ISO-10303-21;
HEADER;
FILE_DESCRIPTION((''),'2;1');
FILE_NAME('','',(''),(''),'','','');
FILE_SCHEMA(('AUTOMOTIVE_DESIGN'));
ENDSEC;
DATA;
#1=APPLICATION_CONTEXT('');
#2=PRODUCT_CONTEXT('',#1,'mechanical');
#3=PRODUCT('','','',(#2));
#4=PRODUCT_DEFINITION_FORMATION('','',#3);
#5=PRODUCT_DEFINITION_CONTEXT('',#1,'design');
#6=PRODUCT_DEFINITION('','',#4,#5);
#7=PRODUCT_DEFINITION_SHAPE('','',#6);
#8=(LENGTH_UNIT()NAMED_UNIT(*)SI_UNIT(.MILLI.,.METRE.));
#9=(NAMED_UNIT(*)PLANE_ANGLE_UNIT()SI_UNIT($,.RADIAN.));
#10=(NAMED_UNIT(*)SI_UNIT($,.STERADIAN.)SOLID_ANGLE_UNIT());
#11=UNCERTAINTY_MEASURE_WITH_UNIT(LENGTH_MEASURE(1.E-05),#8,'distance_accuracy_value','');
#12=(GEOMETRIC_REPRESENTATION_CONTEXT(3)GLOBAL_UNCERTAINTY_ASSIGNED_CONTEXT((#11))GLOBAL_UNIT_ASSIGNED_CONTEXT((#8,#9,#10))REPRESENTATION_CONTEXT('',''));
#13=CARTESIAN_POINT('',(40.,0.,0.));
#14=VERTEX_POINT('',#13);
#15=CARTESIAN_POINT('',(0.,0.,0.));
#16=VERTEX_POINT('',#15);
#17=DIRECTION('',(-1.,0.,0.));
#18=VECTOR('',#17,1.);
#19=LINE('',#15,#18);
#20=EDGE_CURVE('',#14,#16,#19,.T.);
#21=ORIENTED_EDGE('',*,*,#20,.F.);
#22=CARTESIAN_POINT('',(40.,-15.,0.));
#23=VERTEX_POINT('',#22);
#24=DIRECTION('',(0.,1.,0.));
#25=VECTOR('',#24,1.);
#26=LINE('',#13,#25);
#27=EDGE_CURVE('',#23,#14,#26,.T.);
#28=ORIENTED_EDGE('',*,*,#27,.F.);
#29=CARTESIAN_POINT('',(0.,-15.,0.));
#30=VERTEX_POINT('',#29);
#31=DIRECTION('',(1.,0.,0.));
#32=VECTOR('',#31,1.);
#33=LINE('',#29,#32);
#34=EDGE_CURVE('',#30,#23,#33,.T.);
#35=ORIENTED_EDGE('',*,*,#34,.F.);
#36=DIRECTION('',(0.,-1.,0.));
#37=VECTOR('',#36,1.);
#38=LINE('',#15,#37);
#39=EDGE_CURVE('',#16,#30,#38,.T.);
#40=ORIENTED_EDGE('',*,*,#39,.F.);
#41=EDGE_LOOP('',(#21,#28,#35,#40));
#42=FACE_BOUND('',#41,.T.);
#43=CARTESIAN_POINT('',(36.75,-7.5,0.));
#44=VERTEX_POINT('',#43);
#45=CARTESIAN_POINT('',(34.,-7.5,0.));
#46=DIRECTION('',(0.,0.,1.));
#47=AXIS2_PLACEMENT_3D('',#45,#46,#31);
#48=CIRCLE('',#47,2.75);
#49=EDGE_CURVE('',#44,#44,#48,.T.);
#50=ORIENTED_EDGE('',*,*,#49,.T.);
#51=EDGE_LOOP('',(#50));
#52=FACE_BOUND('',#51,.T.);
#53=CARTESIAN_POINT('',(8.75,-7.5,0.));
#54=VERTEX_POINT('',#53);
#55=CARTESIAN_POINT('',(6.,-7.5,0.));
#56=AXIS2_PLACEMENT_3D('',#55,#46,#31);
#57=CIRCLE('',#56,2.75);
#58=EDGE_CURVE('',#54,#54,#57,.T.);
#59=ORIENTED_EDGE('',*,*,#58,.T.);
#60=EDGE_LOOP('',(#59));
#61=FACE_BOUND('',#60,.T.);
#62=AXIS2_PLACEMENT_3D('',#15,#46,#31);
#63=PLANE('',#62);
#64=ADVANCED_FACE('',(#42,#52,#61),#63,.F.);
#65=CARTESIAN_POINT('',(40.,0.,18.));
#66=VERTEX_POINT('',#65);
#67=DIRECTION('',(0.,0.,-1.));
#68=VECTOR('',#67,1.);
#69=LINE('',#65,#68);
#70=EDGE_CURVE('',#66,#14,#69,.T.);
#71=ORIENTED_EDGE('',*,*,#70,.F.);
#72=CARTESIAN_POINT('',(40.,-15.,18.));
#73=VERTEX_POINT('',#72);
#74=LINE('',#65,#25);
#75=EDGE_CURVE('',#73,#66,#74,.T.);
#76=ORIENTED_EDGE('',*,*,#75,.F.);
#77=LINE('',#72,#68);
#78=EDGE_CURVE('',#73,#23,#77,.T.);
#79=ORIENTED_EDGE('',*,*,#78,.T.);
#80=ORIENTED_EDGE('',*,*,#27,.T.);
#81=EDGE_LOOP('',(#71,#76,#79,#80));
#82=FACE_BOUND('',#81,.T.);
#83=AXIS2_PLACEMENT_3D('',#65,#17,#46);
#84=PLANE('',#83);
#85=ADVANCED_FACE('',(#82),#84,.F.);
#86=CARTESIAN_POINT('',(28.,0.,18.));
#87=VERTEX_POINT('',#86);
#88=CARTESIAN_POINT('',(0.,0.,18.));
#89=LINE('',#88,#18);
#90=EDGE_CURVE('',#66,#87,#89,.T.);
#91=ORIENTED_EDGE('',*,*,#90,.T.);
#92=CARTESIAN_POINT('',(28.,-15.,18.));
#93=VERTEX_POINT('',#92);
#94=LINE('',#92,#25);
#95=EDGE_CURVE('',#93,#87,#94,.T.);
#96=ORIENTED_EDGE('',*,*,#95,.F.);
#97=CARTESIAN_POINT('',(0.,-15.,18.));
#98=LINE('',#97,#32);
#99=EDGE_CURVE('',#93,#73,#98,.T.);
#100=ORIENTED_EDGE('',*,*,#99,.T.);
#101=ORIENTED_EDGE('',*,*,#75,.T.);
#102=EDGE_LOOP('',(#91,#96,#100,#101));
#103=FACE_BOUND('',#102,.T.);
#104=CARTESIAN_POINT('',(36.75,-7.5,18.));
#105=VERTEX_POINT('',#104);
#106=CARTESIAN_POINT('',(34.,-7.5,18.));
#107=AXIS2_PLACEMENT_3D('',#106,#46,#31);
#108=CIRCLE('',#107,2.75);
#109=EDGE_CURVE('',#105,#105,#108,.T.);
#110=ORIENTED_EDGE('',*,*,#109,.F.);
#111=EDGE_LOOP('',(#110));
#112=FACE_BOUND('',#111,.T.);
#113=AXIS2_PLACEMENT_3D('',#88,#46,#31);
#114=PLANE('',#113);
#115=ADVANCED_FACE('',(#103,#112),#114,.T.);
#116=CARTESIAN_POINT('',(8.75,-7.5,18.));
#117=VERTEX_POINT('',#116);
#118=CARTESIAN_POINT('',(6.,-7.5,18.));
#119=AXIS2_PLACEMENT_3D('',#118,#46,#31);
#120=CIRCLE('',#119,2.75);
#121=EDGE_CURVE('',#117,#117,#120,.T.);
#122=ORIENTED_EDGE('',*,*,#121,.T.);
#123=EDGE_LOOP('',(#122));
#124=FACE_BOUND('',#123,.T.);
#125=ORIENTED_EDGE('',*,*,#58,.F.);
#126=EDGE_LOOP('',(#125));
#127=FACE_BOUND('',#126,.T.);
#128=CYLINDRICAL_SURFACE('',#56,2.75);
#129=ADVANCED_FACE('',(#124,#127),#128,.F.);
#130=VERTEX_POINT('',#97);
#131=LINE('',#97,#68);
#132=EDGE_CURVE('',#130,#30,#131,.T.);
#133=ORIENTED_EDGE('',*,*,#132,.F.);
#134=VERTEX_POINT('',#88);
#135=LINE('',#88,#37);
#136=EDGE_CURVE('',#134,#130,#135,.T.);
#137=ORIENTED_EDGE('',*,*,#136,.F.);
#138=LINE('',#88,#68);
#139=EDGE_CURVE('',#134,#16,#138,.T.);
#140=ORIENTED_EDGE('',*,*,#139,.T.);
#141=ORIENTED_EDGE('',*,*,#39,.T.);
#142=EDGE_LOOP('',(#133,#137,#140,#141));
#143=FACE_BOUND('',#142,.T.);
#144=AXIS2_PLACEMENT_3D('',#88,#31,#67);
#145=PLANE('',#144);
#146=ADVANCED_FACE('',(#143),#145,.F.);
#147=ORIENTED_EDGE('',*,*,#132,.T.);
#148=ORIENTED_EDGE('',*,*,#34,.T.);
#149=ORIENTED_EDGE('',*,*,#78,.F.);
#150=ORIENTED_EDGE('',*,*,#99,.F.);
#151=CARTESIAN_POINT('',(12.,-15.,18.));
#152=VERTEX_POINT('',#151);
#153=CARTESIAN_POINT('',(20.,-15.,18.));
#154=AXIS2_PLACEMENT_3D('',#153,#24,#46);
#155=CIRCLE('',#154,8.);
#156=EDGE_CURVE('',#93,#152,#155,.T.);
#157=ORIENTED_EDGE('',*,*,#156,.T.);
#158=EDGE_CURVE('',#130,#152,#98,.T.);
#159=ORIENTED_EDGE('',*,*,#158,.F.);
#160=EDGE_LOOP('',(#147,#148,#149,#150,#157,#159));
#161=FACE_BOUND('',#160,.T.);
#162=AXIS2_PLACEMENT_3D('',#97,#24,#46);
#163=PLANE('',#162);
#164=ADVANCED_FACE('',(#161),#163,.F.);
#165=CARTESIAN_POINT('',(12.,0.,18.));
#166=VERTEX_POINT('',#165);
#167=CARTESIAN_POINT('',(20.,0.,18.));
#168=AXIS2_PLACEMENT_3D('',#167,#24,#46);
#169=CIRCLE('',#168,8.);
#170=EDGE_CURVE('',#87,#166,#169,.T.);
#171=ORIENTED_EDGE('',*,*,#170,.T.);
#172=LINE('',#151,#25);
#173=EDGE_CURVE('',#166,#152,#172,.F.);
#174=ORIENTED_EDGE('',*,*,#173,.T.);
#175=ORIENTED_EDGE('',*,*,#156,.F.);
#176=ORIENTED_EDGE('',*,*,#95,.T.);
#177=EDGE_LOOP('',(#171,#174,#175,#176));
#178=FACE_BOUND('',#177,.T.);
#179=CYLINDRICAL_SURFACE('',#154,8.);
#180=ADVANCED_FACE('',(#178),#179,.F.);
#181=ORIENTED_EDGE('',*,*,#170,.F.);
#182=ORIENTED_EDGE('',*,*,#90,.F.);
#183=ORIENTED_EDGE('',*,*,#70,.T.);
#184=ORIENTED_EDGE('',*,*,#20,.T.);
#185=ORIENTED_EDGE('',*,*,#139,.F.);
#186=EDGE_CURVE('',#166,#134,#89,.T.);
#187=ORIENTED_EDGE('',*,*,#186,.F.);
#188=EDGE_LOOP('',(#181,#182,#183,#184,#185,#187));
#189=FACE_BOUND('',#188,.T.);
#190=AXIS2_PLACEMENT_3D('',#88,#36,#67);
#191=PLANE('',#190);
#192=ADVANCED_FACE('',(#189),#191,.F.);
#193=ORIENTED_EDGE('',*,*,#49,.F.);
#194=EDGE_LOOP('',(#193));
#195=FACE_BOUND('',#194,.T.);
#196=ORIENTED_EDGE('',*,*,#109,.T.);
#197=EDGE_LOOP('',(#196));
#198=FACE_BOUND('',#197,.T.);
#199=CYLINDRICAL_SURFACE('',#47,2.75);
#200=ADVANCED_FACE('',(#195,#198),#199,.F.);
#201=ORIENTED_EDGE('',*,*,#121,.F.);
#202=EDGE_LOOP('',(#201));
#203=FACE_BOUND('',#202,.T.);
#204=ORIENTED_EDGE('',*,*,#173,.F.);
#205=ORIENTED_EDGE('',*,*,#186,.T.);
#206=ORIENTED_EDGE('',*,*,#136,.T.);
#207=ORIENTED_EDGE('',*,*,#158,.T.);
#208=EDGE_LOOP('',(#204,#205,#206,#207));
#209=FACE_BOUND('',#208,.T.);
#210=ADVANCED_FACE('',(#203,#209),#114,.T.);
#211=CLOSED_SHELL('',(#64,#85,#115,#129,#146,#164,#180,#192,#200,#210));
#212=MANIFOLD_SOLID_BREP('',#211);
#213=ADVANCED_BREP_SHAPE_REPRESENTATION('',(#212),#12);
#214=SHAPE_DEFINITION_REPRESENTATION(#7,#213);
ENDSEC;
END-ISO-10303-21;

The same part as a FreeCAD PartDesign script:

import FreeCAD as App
import Part
import Sketcher

V = App.Vector
Q = App.Units.Quantity

doc = App.newDocument("Part")
params = doc.addObject("Spreadsheet::Sheet", "Params")
for row, (alias, value) in enumerate([
    ("sketch1_width", "40 mm"),
    ("sketch1_height", "15 mm"),
    ("pad1_length", "18 mm"),
    ("sketch2_diameter", "16 mm"),
    ("pocket1_length", "15 mm"),
    ("sketch3_diameter", "5.5 mm"),
], start=1):
    params.set(f"A{row}", alias)
    params.set(f"B{row}", "=" + value)
    params.setAlias(f"B{row}", alias)

body = doc.addObject("PartDesign::Body", "Body")

sketch1 = body.newObject("Sketcher::SketchObject", "Sketch")
sketch1.AttachmentSupport = (doc.getObject("XY_Plane"), [""])
sketch1.MapMode = "FlatFace"
sketch1.addGeometry([
    Part.LineSegment(V(0, 0, 0), V(0, -15, 0)),
    Part.LineSegment(V(0, -15, 0), V(40, -15, 0)),
    Part.LineSegment(V(40, -15, 0), V(40, 0, 0)),
    Part.LineSegment(V(40, 0, 0), V(0, 0, 0)),
], False)
sketch1.addConstraint([
    Sketcher.Constraint("Coincident", 0, 2, 1, 1),
    Sketcher.Constraint("Coincident", 1, 2, 2, 1),
    Sketcher.Constraint("Coincident", 2, 2, 3, 1),
    Sketcher.Constraint("Coincident", 3, 2, 0, 1),
    Sketcher.Constraint("Vertical", 0),
    Sketcher.Constraint("Horizontal", 1),
    Sketcher.Constraint("Vertical", 2),
    Sketcher.Constraint("Horizontal", 3),
    Sketcher.Constraint("Coincident", 3, 2, -1, 1),
    Sketcher.Constraint("DistanceX", 1, 1, 1, 2, Q("40 mm")),
    Sketcher.Constraint("DistanceY", 0, 2, 0, 1, Q("15 mm")),
])
sketch1.setExpression("Constraints[9]", "Params.sketch1_width")
sketch1.setExpression("Constraints[10]", "Params.sketch1_height")
pad1 = body.newObject("PartDesign::Pad", "Pad")
pad1.Profile = sketch1
pad1.setExpression("Length", "Params.pad1_length")

sketch2 = body.newObject("Sketcher::SketchObject", "Sketch001")
sketch2.AttachmentSupport = (doc.getObject("XZ_Plane"), [""])
sketch2.MapMode = "FlatFace"
sketch2.addGeometry(Part.Circle(V(20, 18, 0), V(0, 0, 1), 8), False)
sketch2.addConstraint([
    Sketcher.Constraint("Diameter", 0, Q("16 mm")),
    Sketcher.Constraint("DistanceX", -1, 1, 0, 3, Q("20 mm")),
    Sketcher.Constraint("DistanceY", -1, 1, 0, 3, Q("18 mm")),
])
sketch2.setExpression("Constraints[0]", "Params.sketch2_diameter")
pocket1 = body.newObject("PartDesign::Pocket", "Pocket")
pocket1.Profile = sketch2
pocket1.setExpression("Length", "Params.pocket1_length")
pocket1.Reversed = True

sketch3 = body.newObject("Sketcher::SketchObject", "Sketch002")
sketch3.AttachmentSupport = (doc.getObject("XY_Plane"), [""])
sketch3.MapMode = "FlatFace"
sketch3.AttachmentOffset = App.Placement(V(0, 0, 18), App.Rotation())
sketch3.addGeometry([
    Part.Circle(V(34, -7.5, 0), V(0, 0, 1), 2.75),
    Part.Circle(V(6, -7.5, 0), V(0, 0, 1), 2.75),
], False)
sketch3.addConstraint([
    Sketcher.Constraint("Equal", 0, 1),
    Sketcher.Constraint("Horizontal", 0, 3, 1, 3),
    Sketcher.Constraint("Diameter", 0, Q("5.5 mm")),
    Sketcher.Constraint("DistanceX", -1, 1, 0, 3, Q("34 mm")),
    Sketcher.Constraint("DistanceX", -1, 1, 1, 3, Q("6 mm")),
    Sketcher.Constraint("DistanceY", 0, 3, -1, 1, Q("7.5 mm")),
])
sketch3.setExpression("Constraints[2]", "Params.sketch3_diameter")
pocket2 = body.newObject("PartDesign::Pocket", "Pocket001")
pocket2.Profile = sketch3
pocket2.Type = "ThroughAll"

doc.recompute()
